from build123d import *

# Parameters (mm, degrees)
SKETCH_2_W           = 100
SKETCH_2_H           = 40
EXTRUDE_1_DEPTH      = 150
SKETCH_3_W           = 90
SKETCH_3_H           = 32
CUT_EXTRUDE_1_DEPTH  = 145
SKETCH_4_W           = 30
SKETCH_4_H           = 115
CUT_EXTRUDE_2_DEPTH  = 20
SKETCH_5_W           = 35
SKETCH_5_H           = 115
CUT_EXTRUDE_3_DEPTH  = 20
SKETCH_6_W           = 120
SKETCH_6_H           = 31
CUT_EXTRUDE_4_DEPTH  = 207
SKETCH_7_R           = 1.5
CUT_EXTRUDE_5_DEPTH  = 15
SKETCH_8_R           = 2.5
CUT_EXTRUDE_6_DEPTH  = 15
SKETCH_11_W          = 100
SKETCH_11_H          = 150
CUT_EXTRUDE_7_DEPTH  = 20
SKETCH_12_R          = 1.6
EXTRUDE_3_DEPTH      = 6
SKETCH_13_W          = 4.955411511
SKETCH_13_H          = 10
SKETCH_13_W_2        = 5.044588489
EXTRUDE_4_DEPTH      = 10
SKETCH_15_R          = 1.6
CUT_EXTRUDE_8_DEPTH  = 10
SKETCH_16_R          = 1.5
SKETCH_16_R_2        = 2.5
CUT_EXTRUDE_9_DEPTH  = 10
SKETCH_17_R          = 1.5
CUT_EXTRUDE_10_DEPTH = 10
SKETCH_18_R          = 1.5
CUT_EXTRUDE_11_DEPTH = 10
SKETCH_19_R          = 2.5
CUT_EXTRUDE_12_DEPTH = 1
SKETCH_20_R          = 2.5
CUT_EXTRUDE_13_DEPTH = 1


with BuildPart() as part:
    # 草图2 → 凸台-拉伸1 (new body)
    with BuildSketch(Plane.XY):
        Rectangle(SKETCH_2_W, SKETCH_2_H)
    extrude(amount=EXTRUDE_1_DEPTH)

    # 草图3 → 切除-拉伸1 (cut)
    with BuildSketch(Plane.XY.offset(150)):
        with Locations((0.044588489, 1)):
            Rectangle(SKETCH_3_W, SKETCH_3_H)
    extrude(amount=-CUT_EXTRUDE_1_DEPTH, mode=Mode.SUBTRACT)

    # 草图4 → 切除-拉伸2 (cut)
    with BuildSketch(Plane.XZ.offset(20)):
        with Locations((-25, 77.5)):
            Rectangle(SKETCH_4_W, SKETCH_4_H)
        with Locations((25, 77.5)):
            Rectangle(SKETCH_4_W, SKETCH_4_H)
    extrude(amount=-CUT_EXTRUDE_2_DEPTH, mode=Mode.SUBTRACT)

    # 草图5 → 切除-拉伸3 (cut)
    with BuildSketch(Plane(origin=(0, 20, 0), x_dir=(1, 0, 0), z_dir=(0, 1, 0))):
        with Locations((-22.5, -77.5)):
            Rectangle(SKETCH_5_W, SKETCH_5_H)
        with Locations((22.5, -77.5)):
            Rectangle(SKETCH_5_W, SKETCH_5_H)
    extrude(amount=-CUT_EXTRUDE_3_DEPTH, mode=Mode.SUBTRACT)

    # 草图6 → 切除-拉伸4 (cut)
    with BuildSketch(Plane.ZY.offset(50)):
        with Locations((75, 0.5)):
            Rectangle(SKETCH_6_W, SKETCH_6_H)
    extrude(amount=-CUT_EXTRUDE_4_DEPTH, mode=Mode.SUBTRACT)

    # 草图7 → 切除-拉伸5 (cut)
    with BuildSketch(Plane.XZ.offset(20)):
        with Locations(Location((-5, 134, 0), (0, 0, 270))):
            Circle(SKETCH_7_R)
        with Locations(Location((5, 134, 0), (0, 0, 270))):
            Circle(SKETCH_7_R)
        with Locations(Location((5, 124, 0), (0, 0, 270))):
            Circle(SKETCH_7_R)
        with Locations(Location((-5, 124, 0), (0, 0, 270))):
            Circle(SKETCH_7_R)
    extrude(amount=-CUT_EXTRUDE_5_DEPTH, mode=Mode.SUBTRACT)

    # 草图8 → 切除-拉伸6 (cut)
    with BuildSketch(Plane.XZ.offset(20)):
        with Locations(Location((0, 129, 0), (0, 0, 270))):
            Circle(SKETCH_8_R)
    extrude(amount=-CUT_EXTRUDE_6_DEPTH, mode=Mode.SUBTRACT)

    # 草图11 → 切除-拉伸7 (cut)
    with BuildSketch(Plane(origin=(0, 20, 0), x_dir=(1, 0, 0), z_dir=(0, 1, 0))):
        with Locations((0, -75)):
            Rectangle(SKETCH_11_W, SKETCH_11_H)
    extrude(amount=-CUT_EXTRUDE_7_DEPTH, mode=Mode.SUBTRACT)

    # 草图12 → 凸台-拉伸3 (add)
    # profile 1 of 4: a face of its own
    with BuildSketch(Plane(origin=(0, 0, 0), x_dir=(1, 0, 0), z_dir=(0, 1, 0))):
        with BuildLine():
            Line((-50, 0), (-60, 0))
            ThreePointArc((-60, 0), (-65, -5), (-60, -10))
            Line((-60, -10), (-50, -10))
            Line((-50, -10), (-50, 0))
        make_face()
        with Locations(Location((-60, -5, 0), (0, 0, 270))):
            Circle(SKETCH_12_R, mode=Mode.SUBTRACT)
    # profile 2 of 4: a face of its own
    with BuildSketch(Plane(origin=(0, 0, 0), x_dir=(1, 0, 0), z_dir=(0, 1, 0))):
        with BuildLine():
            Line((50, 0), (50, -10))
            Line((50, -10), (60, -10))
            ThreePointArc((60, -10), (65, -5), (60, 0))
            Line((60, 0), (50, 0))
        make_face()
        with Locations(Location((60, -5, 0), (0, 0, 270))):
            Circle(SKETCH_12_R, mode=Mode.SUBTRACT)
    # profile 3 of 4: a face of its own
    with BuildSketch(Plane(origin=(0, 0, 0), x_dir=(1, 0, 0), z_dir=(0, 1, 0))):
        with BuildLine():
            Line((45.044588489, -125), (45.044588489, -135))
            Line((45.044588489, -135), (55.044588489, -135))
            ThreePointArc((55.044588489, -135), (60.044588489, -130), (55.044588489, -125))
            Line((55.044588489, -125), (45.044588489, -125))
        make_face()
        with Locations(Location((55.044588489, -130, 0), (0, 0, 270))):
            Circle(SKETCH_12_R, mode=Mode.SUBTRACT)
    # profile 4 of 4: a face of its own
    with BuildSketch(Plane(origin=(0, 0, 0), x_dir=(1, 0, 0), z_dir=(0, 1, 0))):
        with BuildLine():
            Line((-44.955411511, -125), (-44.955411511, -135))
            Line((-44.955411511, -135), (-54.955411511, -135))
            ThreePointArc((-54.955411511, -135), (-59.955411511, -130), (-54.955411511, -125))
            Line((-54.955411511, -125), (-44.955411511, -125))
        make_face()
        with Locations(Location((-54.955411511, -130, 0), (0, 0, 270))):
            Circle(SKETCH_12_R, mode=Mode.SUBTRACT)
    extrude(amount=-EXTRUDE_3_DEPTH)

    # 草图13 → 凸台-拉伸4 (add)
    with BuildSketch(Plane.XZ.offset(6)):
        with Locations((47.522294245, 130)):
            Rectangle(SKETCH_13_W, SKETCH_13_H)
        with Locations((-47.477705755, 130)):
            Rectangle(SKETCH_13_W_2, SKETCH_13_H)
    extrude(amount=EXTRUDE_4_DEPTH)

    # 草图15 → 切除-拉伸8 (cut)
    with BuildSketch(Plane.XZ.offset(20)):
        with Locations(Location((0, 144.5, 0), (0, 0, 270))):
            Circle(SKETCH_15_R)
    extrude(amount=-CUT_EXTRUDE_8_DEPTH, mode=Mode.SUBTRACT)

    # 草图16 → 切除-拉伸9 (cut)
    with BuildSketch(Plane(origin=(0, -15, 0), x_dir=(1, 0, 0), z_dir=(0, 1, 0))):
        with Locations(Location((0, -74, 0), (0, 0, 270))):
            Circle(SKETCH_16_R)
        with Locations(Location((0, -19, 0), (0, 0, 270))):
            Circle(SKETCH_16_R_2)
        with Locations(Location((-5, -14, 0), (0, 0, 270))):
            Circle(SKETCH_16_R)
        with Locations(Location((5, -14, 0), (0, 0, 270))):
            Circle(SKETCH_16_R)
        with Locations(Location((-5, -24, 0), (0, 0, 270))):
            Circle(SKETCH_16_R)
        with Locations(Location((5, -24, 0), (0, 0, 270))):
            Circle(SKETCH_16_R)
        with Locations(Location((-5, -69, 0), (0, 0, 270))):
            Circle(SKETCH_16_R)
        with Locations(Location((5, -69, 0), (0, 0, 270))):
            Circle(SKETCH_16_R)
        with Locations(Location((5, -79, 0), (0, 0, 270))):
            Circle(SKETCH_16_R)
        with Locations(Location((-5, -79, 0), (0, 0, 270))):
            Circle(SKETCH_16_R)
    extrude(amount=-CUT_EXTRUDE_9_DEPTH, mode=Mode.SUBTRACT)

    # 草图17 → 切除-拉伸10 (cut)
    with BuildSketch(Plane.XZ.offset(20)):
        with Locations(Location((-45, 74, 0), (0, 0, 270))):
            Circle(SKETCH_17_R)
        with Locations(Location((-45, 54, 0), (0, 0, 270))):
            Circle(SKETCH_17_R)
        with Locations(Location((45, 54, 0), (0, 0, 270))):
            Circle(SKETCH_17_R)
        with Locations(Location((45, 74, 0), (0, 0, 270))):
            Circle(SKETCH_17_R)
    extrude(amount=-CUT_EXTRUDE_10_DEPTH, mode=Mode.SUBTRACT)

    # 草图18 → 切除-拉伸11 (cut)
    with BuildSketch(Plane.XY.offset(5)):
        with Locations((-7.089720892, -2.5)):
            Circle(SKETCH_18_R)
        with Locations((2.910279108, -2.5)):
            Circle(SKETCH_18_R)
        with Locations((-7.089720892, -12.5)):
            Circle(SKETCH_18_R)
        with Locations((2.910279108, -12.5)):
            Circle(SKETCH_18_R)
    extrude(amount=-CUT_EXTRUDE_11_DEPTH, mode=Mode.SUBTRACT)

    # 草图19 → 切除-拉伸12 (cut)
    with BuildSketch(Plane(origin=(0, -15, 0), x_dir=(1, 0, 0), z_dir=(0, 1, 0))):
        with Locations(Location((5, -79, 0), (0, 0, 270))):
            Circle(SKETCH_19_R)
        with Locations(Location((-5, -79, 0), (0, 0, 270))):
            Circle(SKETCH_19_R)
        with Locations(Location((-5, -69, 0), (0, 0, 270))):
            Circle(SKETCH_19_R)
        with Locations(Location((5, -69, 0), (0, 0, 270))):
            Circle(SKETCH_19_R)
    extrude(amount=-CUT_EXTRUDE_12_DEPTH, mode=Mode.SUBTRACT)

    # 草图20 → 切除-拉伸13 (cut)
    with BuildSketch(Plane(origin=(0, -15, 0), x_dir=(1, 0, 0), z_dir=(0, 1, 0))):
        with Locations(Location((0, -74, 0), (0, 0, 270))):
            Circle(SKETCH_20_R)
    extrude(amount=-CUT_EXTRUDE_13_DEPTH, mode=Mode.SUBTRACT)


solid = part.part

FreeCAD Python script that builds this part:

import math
import FreeCAD as App
import Part
import Sketcher

V = App.Vector


def add_polygon(sketch, points):
    """Adds a closed chain of lines whose ends are joined by coincident constraints."""
    first, n = sketch.GeometryCount, len(points)
    for a, b in zip(points, points[1:] + points[:1]):
        sketch.addGeometry(Part.LineSegment(App.Vector(*a, 0), App.Vector(*b, 0)), False)
    for i in range(n):
        sketch.addConstraint(Sketcher.Constraint("Coincident", first + i, 2, first + (i + 1) % n, 1))

doc = App.newDocument("Part")
body = doc.addObject("PartDesign::Body", "Body")

# Sketch on XY plane
sketch1 = body.newObject("Sketcher::SketchObject", "Sketch")
sketch1.AttachmentSupport = (doc.getObject("XY_Plane"), [""])
sketch1.MapMode = "FlatFace"
add_polygon(sketch1, [(-50, 20), (-50, -20), (50, -20), (50, 20)])  # lines 0-3
sketch1.addConstraint([
    Sketcher.Constraint("Vertical", 0),
    Sketcher.Constraint("Horizontal", 1),
    Sketcher.Constraint("Vertical", 2),
    Sketcher.Constraint("Horizontal", 3),
    Sketcher.Constraint("Symmetric", 0, 2, 2, 2, -1, 1),
    Sketcher.Constraint("DistanceX", 1, 1, 1, 2, 100.0),
    Sketcher.Constraint("DistanceY", 0, 2, 0, 1, 40.0),
])
pad1 = body.newObject("PartDesign::Pad", "Pad")
pad1.Profile = sketch1
pad1.Length = 150

# Sketch on XY plane
sketch2 = body.newObject("Sketcher::SketchObject", "Sketch001")
sketch2.AttachmentSupport = (doc.getObject("XY_Plane"), [""])
sketch2.MapMode = "FlatFace"
sketch2.AttachmentOffset = App.Placement(V(0, 0, 150), App.Rotation())
add_polygon(sketch2, [(-45, 17), (-45, -15), (45, -15), (45, 17)])  # lines 0-3
sketch2.addConstraint([
    Sketcher.Constraint("Vertical", 0),
    Sketcher.Constraint("Horizontal", 1),
    Sketcher.Constraint("Vertical", 2),
    Sketcher.Constraint("Horizontal", 3),
    Sketcher.Constraint("DistanceX", 1, 1, 1, 2, 90.0),
    Sketcher.Constraint("DistanceY", 0, 2, 0, 1, 32.0),
    Sketcher.Constraint("DistanceY", 0, 2, -1, 1, 15.0),
    Sketcher.Constraint("DistanceX", 0, 2, -1, 1, 44.955412),
])
pocket1 = body.newObject("PartDesign::Pocket", "Pocket")
pocket1.Profile = sketch2
pocket1.Length = 145

# Sketch on XZ plane
sketch3 = body.newObject("Sketcher::SketchObject", "Sketch002")
sketch3.AttachmentSupport = (doc.getObject("XZ_Plane"), [""])
sketch3.MapMode = "FlatFace"
sketch3.AttachmentOffset = App.Placement(V(0, 0, 20), App.Rotation())
add_polygon(sketch3, [(-40, 135), (-40, 20), (-10, 20), (-10, 135)])  # lines 0-3
add_polygon(sketch3, [(10, 135), (10, 20), (40, 20), (40, 135)])  # lines 4-7
sketch3.addConstraint([
    Sketcher.Constraint("Vertical", 0),
    Sketcher.Constraint("Horizontal", 1),
    Sketcher.Constraint("Vertical", 2),
    Sketcher.Constraint("Horizontal", 3),
    Sketcher.Constraint("Vertical", 4),
    Sketcher.Constraint("Horizontal", 5),
    Sketcher.Constraint("Vertical", 6),
    Sketcher.Constraint("Horizontal", 7),
    Sketcher.Constraint("Symmetric", 1, 2, 4, 2, -2),
    Sketcher.Constraint("Symmetric", 3, 2, 6, 2, -2),
    Sketcher.Constraint("DistanceX", 1, 1, 1, 2, 30.0),
    Sketcher.Constraint("DistanceY", 0, 2, 0, 1, 115.0),
    Sketcher.Constraint("DistanceX", 0, 2, -1, 1, 40.0),
    Sketcher.Constraint("DistanceY", -1, 1, 0, 2, 20.0),
])
pocket2 = body.newObject("PartDesign::Pocket", "Pocket001")
pocket2.Profile = sketch3
pocket2.Length = 20

# Sketch on XZ plane
sketch4 = body.newObject("Sketcher::SketchObject", "Sketch003")
sketch4.AttachmentSupport = (doc.getObject("XZ_Plane"), [""])
sketch4.MapMode = "FlatFace"
sketch4.AttachmentOffset = App.Placement(V(0, 0, -20), App.Rotation())
add_polygon(sketch4, [(-40, 20), (-40, 135), (-5, 135), (-5, 20)])  # lines 0-3
add_polygon(sketch4, [(5, 20), (5, 135), (40, 135), (40, 20)])  # lines 4-7
sketch4.addConstraint([
    Sketcher.Constraint("Vertical", 0),
    Sketcher.Constraint("Horizontal", 1),
    Sketcher.Constraint("Vertical", 2),
    Sketcher.Constraint("Horizontal", 3),
    Sketcher.Constraint("Vertical", 4),
    Sketcher.Constraint("Horizontal", 5),
    Sketcher.Constraint("Vertical", 6),
    Sketcher.Constraint("Horizontal", 7),
    Sketcher.Constraint("Symmetric", 1, 2, 4, 2, -2),
    Sketcher.Constraint("Symmetric", 3, 2, 6, 2, -2),
    Sketcher.Constraint("DistanceX", 1, 1, 1, 2, 35.0),
    Sketcher.Constraint("DistanceY", 0, 1, 0, 2, 115.0),
    Sketcher.Constraint("DistanceX", 0, 2, -1, 1, 40.0),
    Sketcher.Constraint("DistanceY", -1, 1, 0, 2, 135.0),
])
pocket3 = body.newObject("PartDesign::Pocket", "Pocket002")
pocket3.Profile = sketch4
pocket3.Length = 20
pocket3.Reversed = True

# Sketch on YZ plane
sketch5 = body.newObject("Sketcher::SketchObject", "Sketch004")
sketch5.AttachmentSupport = (doc.getObject("YZ_Plane"), [""])
sketch5.MapMode = "FlatFace"
sketch5.AttachmentOffset = App.Placement(V(0, 0, -50), App.Rotation())
add_polygon(sketch5, [(16, 15), (-15, 15), (-15, 135), (16, 135)])  # lines 0-3
sketch5.addConstraint([
    Sketcher.Constraint("Horizontal", 0),
    Sketcher.Constraint("Vertical", 1),
    Sketcher.Constraint("Horizontal", 2),
    Sketcher.Constraint("Vertical", 3),
    Sketcher.Constraint("DistanceX", 0, 2, 0, 1, 31.0),
    Sketcher.Constraint("DistanceY", 1, 1, 1, 2, 120.0),
    Sketcher.Constraint("DistanceX", 0, 2, -1, 1, 15.0),
    Sketcher.Constraint("DistanceY", -1, 1, 0, 2, 15.0),
])
pocket4 = body.newObject("PartDesign::Pocket", "Pocket003")
pocket4.Profile = sketch5
pocket4.Length = 207
pocket4.Reversed = True

# Sketch on XZ plane
sketch6 = body.newObject("Sketcher::SketchObject", "Sketch005")
sketch6.AttachmentSupport = (doc.getObject("XZ_Plane"), [""])
sketch6.MapMode = "FlatFace"
sketch6.AttachmentOffset = App.Placement(V(0, 0, 20), App.Rotation())
sketch6.addGeometry([
    Part.Circle(V(-5, 134, 0), V(0, 0, 1), 1.5),
    Part.Circle(V(5, 134, 0), V(0, 0, 1), 1.5),
    Part.Circle(V(5, 124, 0), V(0, 0, 1), 1.5),
    Part.Circle(V(-5, 124, 0), V(0, 0, 1), 1.5),
], False)
sketch6.addConstraint([
    Sketcher.Constraint("Equal", 0, 1),
    Sketcher.Constraint("Equal", 1, 2),
    Sketcher.Constraint("Equal", 2, 3),
    Sketcher.Constraint("Symmetric", 0, 3, 1, 3, -2),
    Sketcher.Constraint("Symmetric", 2, 3, 3, 3, -2),
    Sketcher.Constraint("Vertical", 1, 3, 2, 3),
    Sketcher.Constraint("Diameter", 0, 3.0),
    Sketcher.Constraint("DistanceX", 0, 3, -1, 1, 5.0),
    Sketcher.Constraint("DistanceY", -1, 1, 0, 3, 134.0),
    Sketcher.Constraint("DistanceY", -1, 1, 2, 3, 124.0),
])
pocket5 = body.newObject("PartDesign::Pocket", "Pocket004")
pocket5.Profile = sketch6
pocket5.Length = 15

# Sketch on XZ plane
sketch7 = body.newObject("Sketcher::SketchObject", "Sketch006")
sketch7.AttachmentSupport = (doc.getObject("XZ_Plane"), [""])
sketch7.MapMode = "FlatFace"
sketch7.AttachmentOffset = App.Placement(V(0, 0, 20), App.Rotation())
sketch7.addGeometry(Part.Circle(V(0, 129, 0), V(0, 0, 1), 2.5), False)
sketch7.addConstraint([
    Sketcher.Constraint("PointOnObject", 0, 3, -2),
    Sketcher.Constraint("Diameter", 0, 5.0),
    Sketcher.Constraint("DistanceY", -1, 1, 0, 3, 129.0),
])
pocket6 = body.newObject("PartDesign::Pocket", "Pocket005")
pocket6.Profile = sketch7
pocket6.Length = 15

# Sketch on XZ plane
sketch8 = body.newObject("Sketcher::SketchObject", "Sketch007")
sketch8.AttachmentSupport = (doc.getObject("XZ_Plane"), [""])
sketch8.MapMode = "FlatFace"
sketch8.AttachmentOffset = App.Placement(V(0, 0, -20), App.Rotation())
add_polygon(sketch8, [(-50, 0), (-50, 150), (50, 150), (50, 0)])  # lines 0-3
sketch8.addConstraint([
    Sketcher.Constraint("Vertical", 0),
    Sketcher.Constraint("Horizontal", 1),
    Sketcher.Constraint("Vertical", 2),
    Sketcher.Constraint("Horizontal", 3),
    Sketcher.Constraint("Symmetric", 2, 2, 3, 2, -1, 1),
    Sketcher.Constraint("DistanceX", 1, 1, 1, 2, 100.0),
    Sketcher.Constraint("DistanceY", 0, 1, 0, 2, 150.0),
])
pocket7 = body.newObject("PartDesign::Pocket", "Pocket006")
pocket7.Profile = sketch8
pocket7.Length = 20
pocket7.Reversed = True

# Sketch on XZ plane
sketch9 = body.newObject("Sketcher::SketchObject", "Sketch008")
sketch9.AttachmentSupport = (doc.getObject("XZ_Plane"), [""])
sketch9.MapMode = "FlatFace"
sketch9.addGeometry([
    Part.LineSegment(V(-50, 0, 0), V(-60, 0, 0)),  # 0
    Part.ArcOfCircle(Part.Circle(V(-60, 5, 0), V(0, 0, 1), 5), math.radians(90), math.radians(270)),  # 1
    Part.LineSegment(V(-60, 10, 0), V(-50, 10, 0)),  # 2
    Part.LineSegment(V(-50, 10, 0), V(-50, 0, 0)),  # 3
    Part.Circle(V(-60, 5, 0), V(0, 0, 1), 1.6),  # 4
    Part.LineSegment(V(50, 0, 0), V(50, 10, 0)),  # 5
    Part.LineSegment(V(50, 10, 0), V(60, 10, 0)),  # 6
    Part.ArcOfCircle(Part.Circle(V(60, 5, 0), V(0, 0, 1), 5), math.radians(-90), math.radians(90)),  # 7
    Part.LineSegment(V(60, 0, 0), V(50, 0, 0)),  # 8
    Part.Circle(V(60, 5, 0), V(0, 0, 1), 1.6),  # 9
    Part.LineSegment(V(45, 125, 0), V(45, 135, 0)),  # 10
    Part.LineSegment(V(45, 135, 0), V(55, 135, 0)),  # 11
    Part.ArcOfCircle(Part.Circle(V(55, 130, 0), V(0, 0, 1), 5), math.radians(-90), math.radians(90)),  # 12
    Part.LineSegment(V(55, 125, 0), V(45, 125, 0)),  # 13
    Part.Circle(V(55, 130, 0), V(0, 0, 1), 1.6),  # 14
    Part.LineSegment(V(-45, 135, 0), V(-45, 125, 0)),  # 15
    Part.LineSegment(V(-45, 125, 0), V(-55, 125, 0)),  # 16
    Part.ArcOfCircle(Part.Circle(V(-55, 130, 0), V(0, 0, 1), 5), math.radians(90), math.radians(270)),  # 17
    Part.LineSegment(V(-55, 135, 0), V(-45, 135, 0)),  # 18
    Part.Circle(V(-55, 130, 0), V(0, 0, 1), 1.6),  # 19
], False)
sketch9.addConstraint([
    Sketcher.Constraint("Tangent", 0, 2, 1, 2),
    Sketcher.Constraint("Tangent", 1, 1, 2, 1),
    Sketcher.Constraint("Coincident", 2, 2, 3, 1),
    Sketcher.Constraint("Coincident", 3, 2, 0, 1),
    Sketcher.Constraint("Coincident", 5, 2, 6, 1),
    Sketcher.Constraint("Tangent", 6, 2, 7, 2),
    Sketcher.Constraint("Tangent", 7, 1, 8, 1),
    Sketcher.Constraint("Coincident", 8, 2, 5, 1),
    Sketcher.Constraint("Coincident", 10, 2, 11, 1),
    Sketcher.Constraint("Tangent", 11, 2, 12, 2),
    Sketcher.Constraint("Tangent", 12, 1, 13, 1),
    Sketcher.Constraint("Coincident", 13, 2, 10, 1),
    Sketcher.Constraint("Coincident", 15, 2, 16, 1),
    Sketcher.Constraint("Tangent", 16, 2, 17, 2),
    Sketcher.Constraint("Tangent", 17, 1, 18, 1),
    Sketcher.Constraint("Coincident", 18, 2, 15, 1),
    Sketcher.Constraint("Horizontal", 0),
    Sketcher.Constraint("Horizontal", 2),
    Sketcher.Constraint("Vertical", 3),
    Sketcher.Constraint("Vertical", 5),
    Sketcher.Constraint("Horizontal", 6),
    Sketcher.Constraint("Horizontal", 8),
    Sketcher.Constraint("Vertical", 10),
    Sketcher.Constraint("Horizontal", 11),
    Sketcher.Constraint("Horizontal", 13),
    Sketcher.Constraint("Vertical", 15),
    Sketcher.Constraint("Horizontal", 16),
    Sketcher.Constraint("Horizontal", 18),
    Sketcher.Constraint("Coincident", 4, 3, 1, 3),
    Sketcher.Constraint("Coincident", 9, 3, 7, 3),
    Sketcher.Constraint("Coincident", 14, 3, 12, 3),
    Sketcher.Constraint("Coincident", 19, 3, 17, 3),
    Sketcher.Constraint("Equal", 1, 7),
    Sketcher.Constraint("Equal", 4, 9),
    Sketcher.Constraint("Equal", 7, 12),
    Sketcher.Constraint("Equal", 9, 14),
    Sketcher.Constraint("Equal", 12, 17),
    Sketcher.Constraint("Equal", 14, 19),
    Sketcher.Constraint("Symmetric", 0, 2, 7, 1, -1, 1),
    Sketcher.Constraint("Symmetric", 2, 2, 5, 2, -2),
    Sketcher.Constraint("Horizontal", 14, 3, 17, 3),
    Sketcher.Constraint("Equal", 8, 11),
    Sketcher.Constraint("Equal", 13, 16),
    Sketcher.Constraint("Equal", 18, 3),
    Sketcher.Constraint("Radius", 1, 5.0),
    Sketcher.Constraint("Diameter", 4, 3.2),
    Sketcher.Constraint("DistanceX", 1, 3, -1, 1, 60.0),
    Sketcher.Constraint("DistanceY", -1, 1, 12, 3, 130.0),
    Sketcher.Constraint("DistanceX", 17, 3, 12, 3, 110.0),
    Sketcher.Constraint("DistanceX", -1, 1, 12, 3, 55.044588),
])
pad2 = body.newObject("PartDesign::Pad", "Pad001")
pad2.Profile = sketch9
pad2.Length = 6

# Sketch on XZ plane
sketch10 = body.newObject("Sketcher::SketchObject", "Sketch009")
sketch10.AttachmentSupport = (doc.getObject("XZ_Plane"), [""])
sketch10.MapMode = "FlatFace"
sketch10.AttachmentOffset = App.Placement(V(0, 0, 6), App.Rotation())
add_polygon(sketch10, [(45, 135), (45, 125), (50, 125), (50, 135)])  # lines 0-3
add_polygon(sketch10, [(-50, 135), (-50, 125), (-45, 125), (-45, 135)])  # lines 4-7
sketch10.addConstraint([
    Sketcher.Constraint("Vertical", 0),
    Sketcher.Constraint("Horizontal", 1),
    Sketcher.Constraint("Vertical", 2),
    Sketcher.Constraint("Horizontal", 3),
    Sketcher.Constraint("Vertical", 4),
    Sketcher.Constraint("Horizontal", 5),
    Sketcher.Constraint("Vertical", 6),
    Sketcher.Constraint("Horizontal", 7),
    Sketcher.Constraint("Symmetric", 1, 2, 4, 2, -2),
    Sketcher.Constraint("Horizontal", 3, 2, 6, 2),
    Sketcher.Constraint("DistanceY", 0, 2, 0, 1, 10.0),
    Sketcher.Constraint("DistanceY", -1, 1, 0, 2, 125.0),
    Sketcher.Constraint("DistanceX", -1, 1, 1, 2, 50.0),
    Sketcher.Constraint("DistanceX", 5, 2, 0, 2, 90.0),
    Sketcher.Constraint("DistanceX", 1, 1, 1, 2, 4.955412),
])
pad3 = body.newObject("PartDesign::Pad", "Pad002")
pad3.Profile = sketch10
pad3.Length = 10

# Sketch on XZ plane
sketch11 = body.newObject("Sketcher::SketchObject", "Sketch010")
sketch11.AttachmentSupport = (doc.getObject("XZ_Plane"), [""])
sketch11.MapMode = "FlatFace"
sketch11.AttachmentOffset = App.Placement(V(0, 0, 20), App.Rotation())
sketch11.addGeometry(Part.Circle(V(0, 144.5, 0), V(0, 0, 1), 1.6), False)
sketch11.addConstraint([
    Sketcher.Constraint("PointOnObject", 0, 3, -2),
    Sketcher.Constraint("Diameter", 0, 3.2),
    Sketcher.Constraint("DistanceY", -1, 1, 0, 3, 144.5),
])
pocket8 = body.newObject("PartDesign::Pocket", "Pocket007")
pocket8.Profile = sketch11
pocket8.Length = 10

# Sketch on XZ plane
sketch12 = body.newObject("Sketcher::SketchObject", "Sketch011")
sketch12.AttachmentSupport = (doc.getObject("XZ_Plane"), [""])
sketch12.MapMode = "FlatFace"
sketch12.AttachmentOffset = App.Placement(V(0, 0, 15), App.Rotation())
sketch12.addGeometry([
    Part.Circle(V(0, 74, 0), V(0, 0, 1), 1.5),  # 0
    Part.Circle(V(0, 19, 0), V(0, 0, 1), 2.5),  # 1
    Part.Circle(V(-5, 14, 0), V(0, 0, 1), 1.5),  # 2
    Part.Circle(V(5, 14, 0), V(0, 0, 1), 1.5),  # 3
    Part.Circle(V(-5, 24, 0), V(0, 0, 1), 1.5),  # 4
    Part.Circle(V(5, 24, 0), V(0, 0, 1), 1.5),  # 5
    Part.Circle(V(-5, 69, 0), V(0, 0, 1), 1.5),  # 6
    Part.Circle(V(5, 69, 0), V(0, 0, 1), 1.5),  # 7
    Part.Circle(V(5, 79, 0), V(0, 0, 1), 1.5),  # 8
    Part.Circle(V(-5, 79, 0), V(0, 0, 1), 1.5),  # 9
], False)
sketch12.addConstraint([
    Sketcher.Constraint("Equal", 0, 2),
    Sketcher.Constraint("Equal", 2, 3),
    Sketcher.Constraint("Equal", 3, 4),
    Sketcher.Constraint("Equal", 4, 5),
    Sketcher.Constraint("Equal", 5, 6),
    Sketcher.Constraint("Equal", 6, 7),
    Sketcher.Constraint("Equal", 7, 8),
    Sketcher.Constraint("Equal", 8, 9),
    Sketcher.Constraint("Symmetric", 2, 3, 3, 3, -2),
    Sketcher.Constraint("Symmetric", 4, 3, 5, 3, -2),
    Sketcher.Constraint("Symmetric", 6, 3, 7, 3, -2),
    Sketcher.Constraint("Symmetric", 8, 3, 9, 3, -2),
    Sketcher.Constraint("PointOnObject", 0, 3, -2),
    Sketcher.Constraint("PointOnObject", 1, 3, -2),
    Sketcher.Constraint("Vertical", 2, 3, 4, 3),
    Sketcher.Constraint("Vertical", 4, 3, 6, 3),
    Sketcher.Constraint("Vertical", 7, 3, 8, 3),
    Sketcher.Constraint("Diameter", 0, 3.0),
    Sketcher.Constraint("Diameter", 1, 5.0),
    Sketcher.Constraint("DistanceY", -1, 1, 0, 3, 74.0),
    Sketcher.Constraint("DistanceY", -1, 1, 1, 3, 19.0),
    Sketcher.Constraint("DistanceX", 2, 3, -1, 1, 5.0),
    Sketcher.Constraint("DistanceY", -1, 1, 2, 3, 14.0),
    Sketcher.Constraint("DistanceY", -1, 1, 4, 3, 24.0),
    Sketcher.Constraint("DistanceY", -1, 1, 6, 3, 69.0),
    Sketcher.Constraint("DistanceY", -1, 1, 8, 3, 79.0),
])
pocket9 = body.newObject("PartDesign::Pocket", "Pocket008")
pocket9.Profile = sketch12
pocket9.Length = 10
pocket9.Reversed = True

# Sketch on XZ plane
sketch13 = body.newObject("Sketcher::SketchObject", "Sketch012")
sketch13.AttachmentSupport = (doc.getObject("XZ_Plane"), [""])
sketch13.MapMode = "FlatFace"
sketch13.AttachmentOffset = App.Placement(V(0, 0, 20), App.Rotation())
sketch13.addGeometry([
    Part.Circle(V(-45, 74, 0), V(0, 0, 1), 1.5),
    Part.Circle(V(-45, 54, 0), V(0, 0, 1), 1.5),
    Part.Circle(V(45, 54, 0), V(0, 0, 1), 1.5),
    Part.Circle(V(45, 74, 0), V(0, 0, 1), 1.5),
], False)
sketch13.addConstraint([
    Sketcher.Constraint("Equal", 0, 1),
    Sketcher.Constraint("Equal", 1, 2),
    Sketcher.Constraint("Equal", 2, 3),
    Sketcher.Constraint("Symmetric", 1, 3, 2, 3, -2),
    Sketcher.Constraint("Symmetric", 0, 3, 3, 3, -2),
    Sketcher.Constraint("Vertical", 0, 3, 1, 3),
    Sketcher.Constraint("Diameter", 0, 3.0),
    Sketcher.Constraint("DistanceX", 0, 3, -1, 1, 45.0),
    Sketcher.Constraint("DistanceY", -1, 1, 0, 3, 74.0),
    Sketcher.Constraint("DistanceY", -1, 1, 1, 3, 54.0),
])
pocket10 = body.newObject("PartDesign::Pocket", "Pocket009")
pocket10.Profile = sketch13
pocket10.Length = 10

# Sketch on XY plane
sketch14 = body.newObject("Sketcher::SketchObject", "Sketch013")
sketch14.AttachmentSupport = (doc.getObject("XY_Plane"), [""])
sketch14.MapMode = "FlatFace"
sketch14.AttachmentOffset = App.Placement(V(0, 0, 5), App.Rotation())
sketch14.addGeometry([
    Part.Circle(V(-7.1, -2.5, 0), V(0, 0, 1), 1.5),
    Part.Circle(V(2.9, -2.5, 0), V(0, 0, 1), 1.5),
    Part.Circle(V(-7.1, -12.5, 0), V(0, 0, 1), 1.5),
    Part.Circle(V(2.9, -12.5, 0), V(0, 0, 1), 1.5),
], False)
sketch14.addConstraint([
    Sketcher.Constraint("Equal", 0, 1),
    Sketcher.Constraint("Equal", 1, 2),
    Sketcher.Constraint("Equal", 2, 3),
    Sketcher.Constraint("Horizontal", 0, 3, 1, 3),
    Sketcher.Constraint("Horizontal", 2, 3, 3, 3),
    Sketcher.Constraint("Vertical", 0, 3, 2, 3),
    Sketcher.Constraint("Vertical", 1, 3, 3, 3),
    Sketcher.Constraint("Diameter", 0, 3.0),
    Sketcher.Constraint("DistanceX", 0, 3, 1, 3, 10.0),
    Sketcher.Constraint("DistanceY", 2, 3, 0, 3, 10.0),
    Sketcher.Constraint("DistanceY", 0, 3, -1, 1, 2.5),
    Sketcher.Constraint("DistanceX", 0, 3, -1, 1, 7.089721),
])
pocket11 = body.newObject("PartDesign::Pocket", "Pocket010")
pocket11.Profile = sketch14
pocket11.Length = 10

# Sketch on XZ plane
sketch15 = body.newObject("Sketcher::SketchObject", "Sketch014")
sketch15.AttachmentSupport = (doc.getObject("XZ_Plane"), [""])
sketch15.MapMode = "FlatFace"
sketch15.AttachmentOffset = App.Placement(V(0, 0, 15), App.Rotation())
sketch15.addGeometry([
    Part.Circle(V(5, 79, 0), V(0, 0, 1), 2.5),
    Part.Circle(V(-5, 79, 0), V(0, 0, 1), 2.5),
    Part.Circle(V(-5, 69, 0), V(0, 0, 1), 2.5),
    Part.Circle(V(5, 69, 0), V(0, 0, 1), 2.5),
], False)
sketch15.addConstraint([
    Sketcher.Constraint("Equal", 0, 1),
    Sketcher.Constraint("Equal", 1, 2),
    Sketcher.Constraint("Equal", 2, 3),
    Sketcher.Constraint("Symmetric", 0, 3, 1, 3, -2),
    Sketcher.Constraint("Symmetric", 2, 3, 3, 3, -2),
    Sketcher.Constraint("Vertical", 1, 3, 2, 3),
    Sketcher.Constraint("Diameter", 0, 5.0),
    Sketcher.Constraint("DistanceX", -1, 1, 0, 3, 5.0),
    Sketcher.Constraint("DistanceY", -1, 1, 0, 3, 79.0),
    Sketcher.Constraint("DistanceY", -1, 1, 2, 3, 69.0),
])
pocket12 = body.newObject("PartDesign::Pocket", "Pocket011")
pocket12.Profile = sketch15
pocket12.Length = 1
pocket12.Reversed = True

# Sketch on XZ plane
sketch16 = body.newObject("Sketcher::SketchObject", "Sketch015")
sketch16.AttachmentSupport = (doc.getObject("XZ_Plane"), [""])
sketch16.MapMode = "FlatFace"
sketch16.AttachmentOffset = App.Placement(V(0, 0, 15), App.Rotation())
sketch16.addGeometry(Part.Circle(V(0, 74, 0), V(0, 0, 1), 2.5), False)
sketch16.addConstraint([
    Sketcher.Constraint("PointOnObject", 0, 3, -2),
    Sketcher.Constraint("Diameter", 0, 5.0),
    Sketcher.Constraint("DistanceY", -1, 1, 0, 3, 74.0),
])
pocket13 = body.newObject("PartDesign::Pocket", "Pocket012")
pocket13.Profile = sketch16
pocket13.Length = 1
pocket13.Reversed = True

doc.recompute()
